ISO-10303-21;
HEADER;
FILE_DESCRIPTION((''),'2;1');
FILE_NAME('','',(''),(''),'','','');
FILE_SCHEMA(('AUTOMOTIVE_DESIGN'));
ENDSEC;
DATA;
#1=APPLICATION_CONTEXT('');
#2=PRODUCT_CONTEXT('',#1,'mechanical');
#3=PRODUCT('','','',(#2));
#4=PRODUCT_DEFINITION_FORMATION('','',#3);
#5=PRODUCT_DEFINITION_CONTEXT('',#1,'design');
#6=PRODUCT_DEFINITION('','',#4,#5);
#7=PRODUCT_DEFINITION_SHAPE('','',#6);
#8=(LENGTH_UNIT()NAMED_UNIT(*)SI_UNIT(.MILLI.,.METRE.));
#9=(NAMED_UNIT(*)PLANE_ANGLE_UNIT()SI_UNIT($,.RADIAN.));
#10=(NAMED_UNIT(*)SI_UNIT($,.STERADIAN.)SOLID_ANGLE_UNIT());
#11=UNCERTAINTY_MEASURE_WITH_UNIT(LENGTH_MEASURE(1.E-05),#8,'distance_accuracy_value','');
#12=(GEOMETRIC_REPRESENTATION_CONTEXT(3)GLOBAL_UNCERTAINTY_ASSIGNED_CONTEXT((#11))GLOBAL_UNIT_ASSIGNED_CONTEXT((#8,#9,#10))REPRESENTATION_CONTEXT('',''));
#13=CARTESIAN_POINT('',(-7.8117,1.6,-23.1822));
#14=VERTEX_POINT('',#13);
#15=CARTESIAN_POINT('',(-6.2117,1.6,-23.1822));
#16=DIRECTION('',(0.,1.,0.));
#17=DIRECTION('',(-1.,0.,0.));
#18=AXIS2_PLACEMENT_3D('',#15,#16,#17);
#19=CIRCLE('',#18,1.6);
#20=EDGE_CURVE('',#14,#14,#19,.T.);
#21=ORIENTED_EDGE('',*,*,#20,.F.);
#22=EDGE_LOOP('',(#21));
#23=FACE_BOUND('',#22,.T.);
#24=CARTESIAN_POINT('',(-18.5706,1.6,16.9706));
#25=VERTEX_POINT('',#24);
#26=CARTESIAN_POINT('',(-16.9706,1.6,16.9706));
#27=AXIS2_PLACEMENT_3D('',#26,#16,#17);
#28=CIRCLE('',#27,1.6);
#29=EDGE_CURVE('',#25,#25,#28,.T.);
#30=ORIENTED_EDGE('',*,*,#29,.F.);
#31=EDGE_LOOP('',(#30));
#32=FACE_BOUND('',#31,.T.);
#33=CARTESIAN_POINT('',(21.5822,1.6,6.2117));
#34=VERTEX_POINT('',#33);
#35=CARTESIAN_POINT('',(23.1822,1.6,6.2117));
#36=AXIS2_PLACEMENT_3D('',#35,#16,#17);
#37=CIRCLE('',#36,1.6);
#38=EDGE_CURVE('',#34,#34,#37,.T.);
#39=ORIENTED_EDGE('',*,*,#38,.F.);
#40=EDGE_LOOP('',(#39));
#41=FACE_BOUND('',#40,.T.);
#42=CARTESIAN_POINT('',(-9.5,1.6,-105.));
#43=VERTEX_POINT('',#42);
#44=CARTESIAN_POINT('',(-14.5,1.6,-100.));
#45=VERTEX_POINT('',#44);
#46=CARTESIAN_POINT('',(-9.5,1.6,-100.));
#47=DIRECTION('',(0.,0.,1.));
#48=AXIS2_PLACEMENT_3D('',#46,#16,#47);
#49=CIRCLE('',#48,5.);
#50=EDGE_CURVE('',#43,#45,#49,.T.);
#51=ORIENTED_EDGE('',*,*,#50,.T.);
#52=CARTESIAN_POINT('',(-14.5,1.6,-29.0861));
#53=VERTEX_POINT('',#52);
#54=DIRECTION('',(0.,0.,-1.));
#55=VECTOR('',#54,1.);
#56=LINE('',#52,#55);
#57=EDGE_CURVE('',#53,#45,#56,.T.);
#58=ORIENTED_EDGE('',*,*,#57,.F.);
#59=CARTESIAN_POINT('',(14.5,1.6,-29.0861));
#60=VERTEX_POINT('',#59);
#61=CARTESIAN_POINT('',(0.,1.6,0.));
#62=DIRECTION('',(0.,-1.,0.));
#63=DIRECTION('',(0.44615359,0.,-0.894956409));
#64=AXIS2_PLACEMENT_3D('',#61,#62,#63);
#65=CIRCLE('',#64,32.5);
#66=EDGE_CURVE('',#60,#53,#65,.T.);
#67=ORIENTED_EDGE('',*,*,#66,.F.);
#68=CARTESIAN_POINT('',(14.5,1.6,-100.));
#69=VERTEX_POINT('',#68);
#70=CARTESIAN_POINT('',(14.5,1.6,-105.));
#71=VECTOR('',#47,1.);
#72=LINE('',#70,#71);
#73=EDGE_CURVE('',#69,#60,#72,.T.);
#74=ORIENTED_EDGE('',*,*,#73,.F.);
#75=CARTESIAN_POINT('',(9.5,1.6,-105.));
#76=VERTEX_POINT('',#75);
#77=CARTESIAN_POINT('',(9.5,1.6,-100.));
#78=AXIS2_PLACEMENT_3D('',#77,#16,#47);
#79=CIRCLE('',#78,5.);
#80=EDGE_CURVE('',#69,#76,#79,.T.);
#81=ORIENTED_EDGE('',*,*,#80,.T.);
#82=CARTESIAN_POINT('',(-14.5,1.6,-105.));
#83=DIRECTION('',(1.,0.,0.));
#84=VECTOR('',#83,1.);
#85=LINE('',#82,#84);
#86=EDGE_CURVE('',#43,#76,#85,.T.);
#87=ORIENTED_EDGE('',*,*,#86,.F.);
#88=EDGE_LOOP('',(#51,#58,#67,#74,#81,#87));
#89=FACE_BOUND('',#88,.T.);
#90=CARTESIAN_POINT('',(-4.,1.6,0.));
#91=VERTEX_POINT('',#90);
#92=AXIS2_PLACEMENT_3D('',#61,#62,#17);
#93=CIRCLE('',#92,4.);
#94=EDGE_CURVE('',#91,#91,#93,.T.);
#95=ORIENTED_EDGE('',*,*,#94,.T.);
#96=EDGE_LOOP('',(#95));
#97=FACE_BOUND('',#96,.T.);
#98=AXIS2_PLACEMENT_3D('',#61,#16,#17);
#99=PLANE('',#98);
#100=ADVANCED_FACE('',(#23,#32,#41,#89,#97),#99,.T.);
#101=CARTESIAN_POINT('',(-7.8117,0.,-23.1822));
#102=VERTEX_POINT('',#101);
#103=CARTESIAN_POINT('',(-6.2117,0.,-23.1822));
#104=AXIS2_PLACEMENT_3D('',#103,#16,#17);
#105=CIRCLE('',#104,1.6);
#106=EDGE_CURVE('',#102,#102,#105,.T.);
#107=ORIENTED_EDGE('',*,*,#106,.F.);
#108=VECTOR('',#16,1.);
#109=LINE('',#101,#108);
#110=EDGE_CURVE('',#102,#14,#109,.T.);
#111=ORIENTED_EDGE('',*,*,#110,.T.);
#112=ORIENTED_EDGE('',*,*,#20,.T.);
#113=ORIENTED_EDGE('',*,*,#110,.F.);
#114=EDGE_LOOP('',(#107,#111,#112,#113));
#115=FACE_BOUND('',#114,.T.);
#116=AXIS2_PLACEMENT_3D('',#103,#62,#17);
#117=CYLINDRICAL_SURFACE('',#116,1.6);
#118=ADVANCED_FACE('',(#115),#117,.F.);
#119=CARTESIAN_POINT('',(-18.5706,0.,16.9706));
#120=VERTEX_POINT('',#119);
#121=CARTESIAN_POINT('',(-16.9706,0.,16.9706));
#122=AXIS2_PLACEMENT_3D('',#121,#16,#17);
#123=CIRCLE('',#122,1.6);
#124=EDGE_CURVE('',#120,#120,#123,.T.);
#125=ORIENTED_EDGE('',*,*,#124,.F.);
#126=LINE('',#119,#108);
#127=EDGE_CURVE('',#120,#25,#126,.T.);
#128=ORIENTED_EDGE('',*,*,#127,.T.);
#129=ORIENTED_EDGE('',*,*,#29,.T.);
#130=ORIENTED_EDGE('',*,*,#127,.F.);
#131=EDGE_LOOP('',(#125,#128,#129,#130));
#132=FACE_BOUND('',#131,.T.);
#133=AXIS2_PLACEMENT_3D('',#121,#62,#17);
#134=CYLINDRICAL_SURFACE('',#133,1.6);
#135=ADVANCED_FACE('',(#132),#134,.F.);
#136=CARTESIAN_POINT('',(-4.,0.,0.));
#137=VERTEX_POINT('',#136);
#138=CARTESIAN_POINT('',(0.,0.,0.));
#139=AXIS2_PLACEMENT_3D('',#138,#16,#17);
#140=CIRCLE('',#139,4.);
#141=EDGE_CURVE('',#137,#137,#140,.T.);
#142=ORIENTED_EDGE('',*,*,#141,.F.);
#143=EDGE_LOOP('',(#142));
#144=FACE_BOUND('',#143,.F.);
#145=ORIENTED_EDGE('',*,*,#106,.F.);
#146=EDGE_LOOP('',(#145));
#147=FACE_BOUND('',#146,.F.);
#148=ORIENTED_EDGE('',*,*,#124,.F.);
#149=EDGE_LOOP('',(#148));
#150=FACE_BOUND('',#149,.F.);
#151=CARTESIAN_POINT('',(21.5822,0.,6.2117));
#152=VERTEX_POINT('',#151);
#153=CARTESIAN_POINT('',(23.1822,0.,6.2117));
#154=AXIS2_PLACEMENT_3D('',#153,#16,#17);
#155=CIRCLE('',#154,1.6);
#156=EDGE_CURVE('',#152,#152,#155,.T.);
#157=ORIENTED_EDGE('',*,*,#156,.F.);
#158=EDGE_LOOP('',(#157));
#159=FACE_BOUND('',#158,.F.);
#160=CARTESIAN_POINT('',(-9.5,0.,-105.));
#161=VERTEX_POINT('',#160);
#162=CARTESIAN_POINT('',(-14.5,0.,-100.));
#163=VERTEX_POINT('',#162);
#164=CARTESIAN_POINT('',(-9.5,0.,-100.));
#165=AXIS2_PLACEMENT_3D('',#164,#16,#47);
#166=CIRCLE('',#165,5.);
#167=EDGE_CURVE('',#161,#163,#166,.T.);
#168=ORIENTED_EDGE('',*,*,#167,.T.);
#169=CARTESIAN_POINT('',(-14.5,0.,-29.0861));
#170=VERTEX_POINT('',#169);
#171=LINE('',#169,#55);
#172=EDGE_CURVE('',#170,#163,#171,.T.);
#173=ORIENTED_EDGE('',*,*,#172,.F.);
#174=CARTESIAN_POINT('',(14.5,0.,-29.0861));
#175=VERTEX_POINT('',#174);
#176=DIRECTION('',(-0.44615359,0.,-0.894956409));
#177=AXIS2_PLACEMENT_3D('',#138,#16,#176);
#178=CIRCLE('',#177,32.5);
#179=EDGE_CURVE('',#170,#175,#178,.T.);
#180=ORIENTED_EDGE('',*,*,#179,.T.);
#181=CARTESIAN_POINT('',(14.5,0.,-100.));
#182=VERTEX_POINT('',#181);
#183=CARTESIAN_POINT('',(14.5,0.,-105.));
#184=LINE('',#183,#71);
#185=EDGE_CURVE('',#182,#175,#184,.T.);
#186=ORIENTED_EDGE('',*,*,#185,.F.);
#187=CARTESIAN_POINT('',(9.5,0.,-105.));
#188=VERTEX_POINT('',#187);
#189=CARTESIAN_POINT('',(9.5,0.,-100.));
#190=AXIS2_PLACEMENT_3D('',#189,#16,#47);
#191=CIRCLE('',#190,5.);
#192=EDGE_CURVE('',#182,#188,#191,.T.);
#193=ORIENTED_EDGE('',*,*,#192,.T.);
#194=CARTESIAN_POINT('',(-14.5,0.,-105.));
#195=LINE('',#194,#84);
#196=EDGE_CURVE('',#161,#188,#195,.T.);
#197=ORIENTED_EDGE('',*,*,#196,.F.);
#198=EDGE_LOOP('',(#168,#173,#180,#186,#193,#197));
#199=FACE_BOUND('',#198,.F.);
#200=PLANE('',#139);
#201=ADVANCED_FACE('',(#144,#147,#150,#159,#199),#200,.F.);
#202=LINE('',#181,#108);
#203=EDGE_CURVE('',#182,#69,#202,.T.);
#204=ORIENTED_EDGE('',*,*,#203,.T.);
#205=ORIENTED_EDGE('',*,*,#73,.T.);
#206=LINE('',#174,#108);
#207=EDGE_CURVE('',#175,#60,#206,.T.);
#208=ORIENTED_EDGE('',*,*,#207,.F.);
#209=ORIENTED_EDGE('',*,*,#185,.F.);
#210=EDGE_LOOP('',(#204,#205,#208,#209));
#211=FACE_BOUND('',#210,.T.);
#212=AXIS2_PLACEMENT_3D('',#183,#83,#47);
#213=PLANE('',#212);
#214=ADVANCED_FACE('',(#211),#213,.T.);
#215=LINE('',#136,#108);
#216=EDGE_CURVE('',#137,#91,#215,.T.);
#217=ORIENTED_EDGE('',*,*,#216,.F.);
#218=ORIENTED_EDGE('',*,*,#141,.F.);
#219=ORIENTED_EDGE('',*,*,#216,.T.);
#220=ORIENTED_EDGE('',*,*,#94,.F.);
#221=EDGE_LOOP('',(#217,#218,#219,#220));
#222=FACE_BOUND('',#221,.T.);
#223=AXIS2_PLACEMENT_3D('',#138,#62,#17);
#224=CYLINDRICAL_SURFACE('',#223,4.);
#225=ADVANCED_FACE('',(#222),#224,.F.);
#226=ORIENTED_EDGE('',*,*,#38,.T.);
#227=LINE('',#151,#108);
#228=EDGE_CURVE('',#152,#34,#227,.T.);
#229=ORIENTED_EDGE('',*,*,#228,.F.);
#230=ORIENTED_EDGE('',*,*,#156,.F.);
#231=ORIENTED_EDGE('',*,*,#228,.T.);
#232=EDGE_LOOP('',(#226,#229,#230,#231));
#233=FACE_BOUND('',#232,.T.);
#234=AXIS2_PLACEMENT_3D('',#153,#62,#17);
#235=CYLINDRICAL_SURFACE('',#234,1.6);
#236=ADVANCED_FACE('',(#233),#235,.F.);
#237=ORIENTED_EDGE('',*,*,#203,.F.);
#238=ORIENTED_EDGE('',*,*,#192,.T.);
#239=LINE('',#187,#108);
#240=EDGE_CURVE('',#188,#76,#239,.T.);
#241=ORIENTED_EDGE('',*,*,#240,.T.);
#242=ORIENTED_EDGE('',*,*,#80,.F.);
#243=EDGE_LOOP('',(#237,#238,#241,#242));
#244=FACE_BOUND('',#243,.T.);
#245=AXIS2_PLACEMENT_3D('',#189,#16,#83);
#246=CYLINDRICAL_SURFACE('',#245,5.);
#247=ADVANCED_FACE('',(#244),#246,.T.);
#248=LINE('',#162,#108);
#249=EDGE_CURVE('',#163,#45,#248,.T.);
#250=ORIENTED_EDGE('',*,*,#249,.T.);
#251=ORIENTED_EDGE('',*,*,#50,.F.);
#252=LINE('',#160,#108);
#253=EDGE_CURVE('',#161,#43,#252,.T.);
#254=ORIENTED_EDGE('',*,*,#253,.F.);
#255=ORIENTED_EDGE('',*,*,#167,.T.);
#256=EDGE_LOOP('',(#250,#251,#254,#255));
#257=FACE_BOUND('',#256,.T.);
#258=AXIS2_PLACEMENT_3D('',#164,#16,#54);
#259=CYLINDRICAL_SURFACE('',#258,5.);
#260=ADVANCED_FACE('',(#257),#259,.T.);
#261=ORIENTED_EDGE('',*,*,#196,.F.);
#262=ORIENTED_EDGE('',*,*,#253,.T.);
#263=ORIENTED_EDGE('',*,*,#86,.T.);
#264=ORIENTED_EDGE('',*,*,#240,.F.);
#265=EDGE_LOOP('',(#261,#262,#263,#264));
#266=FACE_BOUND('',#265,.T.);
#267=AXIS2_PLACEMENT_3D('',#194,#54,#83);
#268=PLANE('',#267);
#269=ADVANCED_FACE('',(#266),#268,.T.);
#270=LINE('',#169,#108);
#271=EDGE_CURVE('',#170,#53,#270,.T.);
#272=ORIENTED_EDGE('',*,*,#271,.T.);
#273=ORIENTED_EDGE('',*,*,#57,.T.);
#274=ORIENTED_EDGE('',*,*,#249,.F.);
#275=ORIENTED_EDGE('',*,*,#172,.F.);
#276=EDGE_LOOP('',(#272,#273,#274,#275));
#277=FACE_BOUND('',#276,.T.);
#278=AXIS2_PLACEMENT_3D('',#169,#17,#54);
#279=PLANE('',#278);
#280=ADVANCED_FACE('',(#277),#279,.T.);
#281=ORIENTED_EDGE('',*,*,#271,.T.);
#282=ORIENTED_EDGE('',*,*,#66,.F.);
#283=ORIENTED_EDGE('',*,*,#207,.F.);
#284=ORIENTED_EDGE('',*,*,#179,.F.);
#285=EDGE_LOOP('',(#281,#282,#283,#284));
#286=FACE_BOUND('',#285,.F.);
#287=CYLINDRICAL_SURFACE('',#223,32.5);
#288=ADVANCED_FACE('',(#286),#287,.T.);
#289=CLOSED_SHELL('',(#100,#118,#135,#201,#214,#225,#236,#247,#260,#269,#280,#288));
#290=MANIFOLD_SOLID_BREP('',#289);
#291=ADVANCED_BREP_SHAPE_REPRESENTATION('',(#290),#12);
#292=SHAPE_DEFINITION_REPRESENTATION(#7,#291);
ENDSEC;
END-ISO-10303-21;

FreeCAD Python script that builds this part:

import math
import FreeCAD as App
import Part
import Sketcher


def edges_at(feature, points):
    """Names of the edges that pass closest to the given points."""
    edges = feature.Shape.Edges
    near = lambda p: min(range(len(edges)), key=lambda i: edges[i].distToShape(Part.Vertex(*p))[0])
    return sorted({f"Edge{near(p) + 1}" for p in points})

doc = App.newDocument("Part")
params = doc.addObject("Spreadsheet::Sheet", "Params")
for row, (alias, value) in enumerate([
    ("sketch1_diameter", "8 mm"),
    ("sketch1_diameter2", "3.2 mm"),
    ("sketch1_radius", "32.5 mm"),
    ("sketch1_width", "29 mm"),
    ("pad1_length", "1.6 mm"),
    ("fillet_radius", "5 mm"),
], start=1):
    params.set(f"A{row}", alias)
    params.set(f"B{row}", "=" + value)
    params.setAlias(f"B{row}", alias)

body = doc.addObject("PartDesign::Body", "Body")

sketch1 = doc.addObject("Sketcher::SketchObject", "Sketch")
body.addObject(sketch1)
sketch1.AttachmentSupport = (doc.XZ_Plane, [""])
sketch1.MapMode = "FlatFace"
sketch1.addGeometry(Part.LineSegment(App.Vector(14.5, -29.1, 0), App.Vector(14.5, -105, 0)), False)
sketch1.addGeometry(Part.LineSegment(App.Vector(14.5, -105, 0), App.Vector(-14.5, -105, 0)), False)
sketch1.addGeometry(Part.LineSegment(App.Vector(-14.5, -105, 0), App.Vector(-14.5, -29.1, 0)), False)
sketch1.addGeometry(Part.ArcOfCircle(Part.Circle(App.Vector(0, 0, 0), App.Vector(0, 0, 1), 32.5), math.radians(-64), math.radians(244)), False)
sketch1.addGeometry(Part.Circle(App.Vector(-6.2, -23.2, 0), App.Vector(0, 0, 1), 1.6), False)
sketch1.addGeometry(Part.Circle(App.Vector(23.2, 6.2, 0), App.Vector(0, 0, 1), 1.6), False)
sketch1.addGeometry(Part.Circle(App.Vector(-17, 17, 0), App.Vector(0, 0, 1), 1.6), False)
sketch1.addGeometry(Part.Circle(App.Vector(0, 0, 0), App.Vector(0, 0, 1), 4), False)
sketch1.addConstraint(Sketcher.Constraint("Coincident", 0, 2, 1, 1))
sketch1.addConstraint(Sketcher.Constraint("Coincident", 1, 2, 2, 1))
sketch1.addConstraint(Sketcher.Constraint("Coincident", 2, 2, 3, 2))
sketch1.addConstraint(Sketcher.Constraint("Coincident", 3, 1, 0, 1))
sketch1.addConstraint(Sketcher.Constraint("Vertical", 0))
sketch1.addConstraint(Sketcher.Constraint("Horizontal", 1))
sketch1.addConstraint(Sketcher.Constraint("Vertical", 2))
sketch1.addConstraint(Sketcher.Constraint("Coincident", 3, 3, -1, 1))
sketch1.addConstraint(Sketcher.Constraint("Coincident", 7, 3, -1, 1))
sketch1.addConstraint(Sketcher.Constraint("Equal", 4, 5))
sketch1.addConstraint(Sketcher.Constraint("Equal", 5, 6))
sketch1.addConstraint(Sketcher.Constraint("Horizontal", 2, 2, 3, 1))
sketch1.addConstraint(Sketcher.Constraint("Diameter", 7, 8.0))
sketch1.addConstraint(Sketcher.Constraint("Diameter", 4, 3.2))
sketch1.addConstraint(Sketcher.Constraint("Radius", 3, 32.5))
sketch1.addConstraint(Sketcher.Constraint("DistanceX", 1, 2, 1, 1, 29.0))
sketch1.addConstraint(Sketcher.Constraint("DistanceY", 0, 2, -1, 1, 105.0))
sketch1.addConstraint(Sketcher.Constraint("DistanceX", 4, 3, -1, 1, 6.2117))
sketch1.addConstraint(Sketcher.Constraint("DistanceY", 4, 3, -1, 1, 23.1822))
sketch1.addConstraint(Sketcher.Constraint("DistanceX", -1, 1, 5, 3, 23.1822))
sketch1.addConstraint(Sketcher.Constraint("DistanceY", -1, 1, 5, 3, 6.2117))
sketch1.addConstraint(Sketcher.Constraint("DistanceX", 6, 3, -1, 1, 16.9706))
sketch1.addConstraint(Sketcher.Constraint("DistanceY", -1, 1, 6, 3, 16.9706))
sketch1.setExpression("Constraints[12]", "Params.sketch1_diameter")
sketch1.setExpression("Constraints[13]", "Params.sketch1_diameter2")
sketch1.setExpression("Constraints[14]", "Params.sketch1_radius")
sketch1.setExpression("Constraints[15]", "Params.sketch1_width")
pad1 = doc.addObject("PartDesign::Pad", "Pad")
body.addObject(pad1)
pad1.Profile = sketch1
pad1.setExpression("Length", "Params.pad1_length")
pad1.Reversed = True
doc.recompute()

fillet = doc.addObject("PartDesign::Fillet", "Fillet")
body.addObject(fillet)
fillet.Base = (pad1, edges_at(pad1, [(-14.5, 0.8, -105), (14.5, 0.8, -105)]))
fillet.setExpression("Radius", "Params.fillet_radius")

doc.recompute()
